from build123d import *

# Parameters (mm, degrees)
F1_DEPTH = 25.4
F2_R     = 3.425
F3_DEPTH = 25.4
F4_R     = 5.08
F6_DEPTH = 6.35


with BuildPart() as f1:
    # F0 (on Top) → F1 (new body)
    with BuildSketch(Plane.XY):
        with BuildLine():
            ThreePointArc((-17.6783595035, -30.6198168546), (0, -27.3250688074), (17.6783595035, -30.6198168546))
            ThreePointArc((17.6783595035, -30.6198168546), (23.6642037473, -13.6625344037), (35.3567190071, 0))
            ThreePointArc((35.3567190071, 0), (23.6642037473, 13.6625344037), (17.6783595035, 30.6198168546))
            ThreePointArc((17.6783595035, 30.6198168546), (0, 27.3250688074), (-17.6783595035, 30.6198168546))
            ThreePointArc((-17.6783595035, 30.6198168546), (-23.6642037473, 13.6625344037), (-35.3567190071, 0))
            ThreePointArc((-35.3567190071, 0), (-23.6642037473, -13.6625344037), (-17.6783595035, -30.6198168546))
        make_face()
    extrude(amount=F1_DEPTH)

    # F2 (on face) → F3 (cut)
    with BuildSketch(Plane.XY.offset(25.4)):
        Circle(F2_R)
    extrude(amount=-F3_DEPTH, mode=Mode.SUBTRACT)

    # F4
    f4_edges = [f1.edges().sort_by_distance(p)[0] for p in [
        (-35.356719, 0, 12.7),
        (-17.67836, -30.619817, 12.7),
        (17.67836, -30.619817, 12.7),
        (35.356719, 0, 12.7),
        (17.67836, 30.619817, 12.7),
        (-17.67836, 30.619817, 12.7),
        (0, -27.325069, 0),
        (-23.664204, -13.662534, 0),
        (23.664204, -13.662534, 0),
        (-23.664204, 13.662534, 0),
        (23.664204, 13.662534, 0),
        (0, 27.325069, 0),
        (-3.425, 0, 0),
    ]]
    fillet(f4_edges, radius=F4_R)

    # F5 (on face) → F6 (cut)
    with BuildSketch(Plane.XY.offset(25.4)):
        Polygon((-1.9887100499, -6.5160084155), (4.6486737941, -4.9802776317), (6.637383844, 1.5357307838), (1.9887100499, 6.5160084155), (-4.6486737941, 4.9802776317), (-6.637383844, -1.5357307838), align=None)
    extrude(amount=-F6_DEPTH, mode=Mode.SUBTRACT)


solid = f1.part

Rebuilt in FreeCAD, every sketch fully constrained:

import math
import FreeCAD as App
import Part
import Sketcher
Q = App.Units.Quantity


def edges_at(feature, points):
    """Names of the edges that pass closest to the given points."""
    edges = feature.Shape.Edges
    near = lambda p: min(range(len(edges)), key=lambda i: edges[i].distToShape(Part.Vertex(*p))[0])
    return sorted({f"Edge{near(p) + 1}" for p in points})


def add_polygon(sketch, points):
    """Adds a closed chain of lines whose ends are joined by coincident constraints."""
    first, n = sketch.GeometryCount, len(points)
    for a, b in zip(points, points[1:] + points[:1]):
        sketch.addGeometry(Part.LineSegment(App.Vector(*a, 0), App.Vector(*b, 0)), False)
    for i in range(n):
        sketch.addConstraint(Sketcher.Constraint("Coincident", first + i, 2, first + (i + 1) % n, 1))

doc = App.newDocument("Part")
body = doc.addObject("PartDesign::Body", "Body")

sketch1 = body.newObject("Sketcher::SketchObject", "Sketch")
sketch1.AttachmentSupport = (doc.getObject("XY_Plane"), [""])
sketch1.MapMode = "FlatFace"
sketch1.addGeometry(Part.ArcOfCircle(Part.Circle(App.Vector(0, -76.400105, 0), App.Vector(0, 0, 1), 49.075036), math.radians(68.885604), math.radians(111.114396)), False)
sketch1.addGeometry(Part.ArcOfCircle(Part.Circle(App.Vector(66.164432, -38.200053, 0), App.Vector(0, 0, 1), 49.075036), math.radians(128.885604), math.radians(171.114396)), False)
sketch1.addGeometry(Part.ArcOfCircle(Part.Circle(App.Vector(66.164432, 38.200053, 0), App.Vector(0, 0, 1), 49.075036), math.radians(-171.114396), math.radians(-128.885604)), False)
sketch1.addGeometry(Part.ArcOfCircle(Part.Circle(App.Vector(0, 76.400105, 0), App.Vector(0, 0, 1), 49.075036), math.radians(-111.114396), math.radians(-68.885604)), False)
sketch1.addGeometry(Part.ArcOfCircle(Part.Circle(App.Vector(-66.164432, 38.200053, 0), App.Vector(0, 0, 1), 49.075036), math.radians(-51.114396), math.radians(-8.885604)), False)
sketch1.addGeometry(Part.ArcOfCircle(Part.Circle(App.Vector(-66.164432, -38.200053, 0), App.Vector(0, 0, 1), 49.075036), math.radians(8.885604), math.radians(51.114396)), False)
sketch1.addConstraint(Sketcher.Constraint("Coincident", 0, 1, 1, 2))
sketch1.addConstraint(Sketcher.Constraint("Coincident", 1, 1, 2, 2))
sketch1.addConstraint(Sketcher.Constraint("Coincident", 2, 1, 3, 2))
sketch1.addConstraint(Sketcher.Constraint("Coincident", 3, 1, 4, 2))
sketch1.addConstraint(Sketcher.Constraint("Coincident", 4, 1, 5, 2))
sketch1.addConstraint(Sketcher.Constraint("Coincident", 5, 1, 0, 2))
sketch1.addConstraint(Sketcher.Constraint("Equal", 0, 1))
sketch1.addConstraint(Sketcher.Constraint("Equal", 1, 2))
sketch1.addConstraint(Sketcher.Constraint("Equal", 2, 3))
sketch1.addConstraint(Sketcher.Constraint("Equal", 3, 4))
sketch1.addConstraint(Sketcher.Constraint("Equal", 4, 5))
sketch1.addConstraint(Sketcher.Constraint("Symmetric", 0, 3, 3, 3, -1, 1))
sketch1.addConstraint(Sketcher.Constraint("Symmetric", 1, 3, 4, 3, -1, 1))
sketch1.addConstraint(Sketcher.Constraint("Symmetric", 2, 3, 5, 3, -1, 1))
sketch1.addConstraint(Sketcher.Constraint("Symmetric", 2, 3, 4, 3, -2))
sketch1.addConstraint(Sketcher.Constraint("PointOnObject", 0, 3, -2))
sketch1.addConstraint(Sketcher.Constraint("Radius", 0, Q("49.075036 mm")))
sketch1.addConstraint(Sketcher.Constraint("DistanceX", -1, 1, 1, 3, Q("66.164432 mm")))
sketch1.addConstraint(Sketcher.Constraint("DistanceX", -1, 1, 0, 1, Q("17.67836 mm")))
sketch1.addConstraint(Sketcher.Constraint("DistanceX", -1, 1, 1, 1, Q("35.356719 mm")))
pad1 = body.newObject("PartDesign::Pad", "Pad")
pad1.Profile = sketch1
pad1.Length = Q("1 in")

sketch2 = body.newObject("Sketcher::SketchObject", "Sketch001")
sketch2.AttachmentSupport = (doc.getObject("XY_Plane"), [""])
sketch2.MapMode = "FlatFace"
sketch2.AttachmentOffset = App.Placement(App.Vector(0, 0, 1 * 25.4), App.Rotation())
sketch2.addGeometry(Part.Circle(App.Vector(0, 0, 0), App.Vector(0, 0, 1), 3.425), False)
sketch2.addConstraint(Sketcher.Constraint("Coincident", 0, 3, -1, 1))
sketch2.addConstraint(Sketcher.Constraint("Diameter", 0, Q("6.85 mm")))
pocket1 = body.newObject("PartDesign::Pocket", "Pocket")
pocket1.Profile = sketch2
pocket1.Length = Q("1 in")
doc.recompute()

fillet = body.newObject("PartDesign::Fillet", "Fillet")
fillet.Base = (pocket1, edges_at(pocket1, [
    (-35.357, 0, 12.7),
    (-17.678, -30.62, 12.7),
    (17.678, -30.62, 12.7),
    (35.357, 0, 12.7),
    (17.678, 30.62, 12.7),
    (-17.678, 30.62, 12.7),
    (0, -27.325, 0),
    (-23.664, -13.663, 0),
    (23.664, -13.663, 0),
    (-23.664, 13.663, 0),
    (23.664, 13.663, 0),
    (0, 27.325, 0),
    (-3.425, 0, 0),
]))
fillet.Radius = Q("0.2 in")

sketch3 = body.newObject("Sketcher::SketchObject", "Sketch002")
sketch3.AttachmentSupport = (doc.getObject("XY_Plane"), [""])
sketch3.MapMode = "FlatFace"
sketch3.AttachmentOffset = App.Placement(App.Vector(0, 0, 1 * 25.4), App.Rotation())
add_polygon(sketch3, [(-1.98871, -6.516008), (4.648674, -4.980278), (6.637384, 1.535731), (1.98871, 6.516008), (-4.648674, 4.980278), (-6.637384, -1.535731)])
sketch3.addConstraint(Sketcher.Constraint("Symmetric", 0, 2, 3, 2, -1, 1))
sketch3.addConstraint(Sketcher.Constraint("Symmetric", 1, 2, 4, 2, -1, 1))
sketch3.addConstraint(Sketcher.Constraint("Symmetric", 2, 2, 5, 2, -1, 1))
sketch3.addConstraint(Sketcher.Constraint("Equal", 0, 1))
sketch3.addConstraint(Sketcher.Constraint("Equal", 1, 2))
sketch3.addConstraint(Sketcher.Constraint("DistanceY", -1, 1, 1, 2, Q("1.535731 mm")))
sketch3.addConstraint(Sketcher.Constraint("DistanceX", -1, 1, 2, 2, Q("1.98871 mm")))
sketch3.addConstraint(Sketcher.Constraint("DistanceY", -1, 1, 2, 2, Q("6.516008 mm")))
sketch3.addConstraint(Sketcher.Constraint("DistanceX", 0, 2, 1, 2, Q("1.98871 mm")))
pocket2 = body.newObject("PartDesign::Pocket", "Pocket001")
pocket2.Profile = sketch3
pocket2.Length = Q("0.25 in")

doc.recompute()
